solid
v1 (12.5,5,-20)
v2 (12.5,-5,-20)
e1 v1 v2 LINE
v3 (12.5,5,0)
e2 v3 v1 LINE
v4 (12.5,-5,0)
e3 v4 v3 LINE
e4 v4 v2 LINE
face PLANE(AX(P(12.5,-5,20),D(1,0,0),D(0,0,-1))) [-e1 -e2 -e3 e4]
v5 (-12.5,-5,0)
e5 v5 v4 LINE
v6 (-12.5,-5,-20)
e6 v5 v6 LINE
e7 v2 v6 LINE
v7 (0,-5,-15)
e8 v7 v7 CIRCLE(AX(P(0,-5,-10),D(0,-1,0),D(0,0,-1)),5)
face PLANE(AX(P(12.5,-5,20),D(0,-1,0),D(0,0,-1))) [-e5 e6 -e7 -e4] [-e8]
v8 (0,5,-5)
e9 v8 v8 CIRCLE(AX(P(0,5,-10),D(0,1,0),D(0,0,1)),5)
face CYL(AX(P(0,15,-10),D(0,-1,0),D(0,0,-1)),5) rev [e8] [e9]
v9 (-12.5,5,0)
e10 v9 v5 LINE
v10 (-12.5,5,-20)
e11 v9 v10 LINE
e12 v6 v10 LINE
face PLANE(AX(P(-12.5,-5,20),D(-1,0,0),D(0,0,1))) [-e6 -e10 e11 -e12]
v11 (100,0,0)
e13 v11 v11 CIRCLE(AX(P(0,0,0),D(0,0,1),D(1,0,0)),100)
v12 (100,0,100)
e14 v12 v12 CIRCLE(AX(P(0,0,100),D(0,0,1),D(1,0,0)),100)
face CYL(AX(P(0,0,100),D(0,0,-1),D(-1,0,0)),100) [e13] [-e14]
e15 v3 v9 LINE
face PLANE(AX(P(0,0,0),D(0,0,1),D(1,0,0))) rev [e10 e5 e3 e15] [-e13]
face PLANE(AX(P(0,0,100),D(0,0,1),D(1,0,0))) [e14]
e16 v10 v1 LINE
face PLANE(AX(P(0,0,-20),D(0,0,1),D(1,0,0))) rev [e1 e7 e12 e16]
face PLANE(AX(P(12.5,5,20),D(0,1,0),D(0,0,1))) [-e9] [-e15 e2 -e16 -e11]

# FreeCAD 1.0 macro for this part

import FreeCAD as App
import Part
import Sketcher
Q = App.Units.Quantity

doc = App.newDocument("Part")
body = doc.addObject("PartDesign::Body", "Body")

# Sketch on XY plane
sketch1 = body.newObject("Sketcher::SketchObject", "Sketch")
sketch1.AttachmentSupport = (doc.getObject("XY_Plane"), [""])
sketch1.MapMode = "FlatFace"
sketch1.addGeometry(Part.Circle(App.Vector(0, 0, 0), App.Vector(0, 0, 1), 100), False)
sketch1.addConstraint(Sketcher.Constraint("Coincident", 0, 3, -1, 1))
sketch1.addConstraint(Sketcher.Constraint("Diameter", 0, Q("200 mm")))
pad1 = body.newObject("PartDesign::Pad", "Pad")
pad1.Profile = sketch1
pad1.Length = 100

# Sketch on XY plane
sketch2 = body.newObject("Sketcher::SketchObject", "Sketch001")
sketch2.AttachmentSupport = (doc.getObject("XY_Plane"), [""])
sketch2.MapMode = "FlatFace"
sketch2.addGeometry(Part.LineSegment(App.Vector(12, 5, 0), App.Vector(12, -5, 0)), False)
sketch2.addGeometry(Part.LineSegment(App.Vector(12, -5, 0), App.Vector(-12, -5, 0)), False)
sketch2.addGeometry(Part.LineSegment(App.Vector(-12, -5, 0), App.Vector(-12, 5, 0)), False)
sketch2.addGeometry(Part.LineSegment(App.Vector(-12, 5, 0), App.Vector(12, 5, 0)), False)
sketch2.addConstraint(Sketcher.Constraint("Coincident", 0, 2, 1, 1))
sketch2.addConstraint(Sketcher.Constraint("Coincident", 1, 2, 2, 1))
sketch2.addConstraint(Sketcher.Constraint("Coincident", 2, 2, 3, 1))
sketch2.addConstraint(Sketcher.Constraint("Coincident", 3, 2, 0, 1))
sketch2.addConstraint(Sketcher.Constraint("Vertical", 0))
sketch2.addConstraint(Sketcher.Constraint("Horizontal", 1))
sketch2.addConstraint(Sketcher.Constraint("Vertical", 2))
sketch2.addConstraint(Sketcher.Constraint("Horizontal", 3))
sketch2.addConstraint(Sketcher.Constraint("Symmetric", 0, 2, 2, 2, -1, 1))
sketch2.addConstraint(Sketcher.Constraint("DistanceX", 1, 2, 1, 1, Q("25 mm")))
sketch2.addConstraint(Sketcher.Constraint("DistanceY", 0, 2, 0, 1, Q("10 mm")))
pad2 = body.newObject("PartDesign::Pad", "Pad001")
pad2.Profile = sketch2
pad2.Type = "TwoLengths"
pad2.Length = 20
pad2.Length2 = 20
pad2.Reversed = True

# Sketch on XZ plane
sketch3 = body.newObject("Sketcher::SketchObject", "Sketch002")
sketch3.AttachmentSupport = (doc.getObject("XZ_Plane"), [""])
sketch3.MapMode = "FlatFace"
sketch3.AttachmentOffset = App.Placement(App.Vector(0, 0, 5), App.Rotation())
sketch3.addGeometry(Part.Circle(App.Vector(0, -10, 0), App.Vector(0, 0, 1), 5), False)
sketch3.addConstraint(Sketcher.Constraint("PointOnObject", 0, 3, -2))
sketch3.addConstraint(Sketcher.Constraint("Diameter", 0, Q("10 mm")))
sketch3.addConstraint(Sketcher.Constraint("DistanceY", 0, 3, -1, 1, Q("10 mm")))
pocket1 = body.newObject("PartDesign::Pocket", "Pocket")
pocket1.Profile = sketch3
pocket1.Length = 20

doc.recompute()
